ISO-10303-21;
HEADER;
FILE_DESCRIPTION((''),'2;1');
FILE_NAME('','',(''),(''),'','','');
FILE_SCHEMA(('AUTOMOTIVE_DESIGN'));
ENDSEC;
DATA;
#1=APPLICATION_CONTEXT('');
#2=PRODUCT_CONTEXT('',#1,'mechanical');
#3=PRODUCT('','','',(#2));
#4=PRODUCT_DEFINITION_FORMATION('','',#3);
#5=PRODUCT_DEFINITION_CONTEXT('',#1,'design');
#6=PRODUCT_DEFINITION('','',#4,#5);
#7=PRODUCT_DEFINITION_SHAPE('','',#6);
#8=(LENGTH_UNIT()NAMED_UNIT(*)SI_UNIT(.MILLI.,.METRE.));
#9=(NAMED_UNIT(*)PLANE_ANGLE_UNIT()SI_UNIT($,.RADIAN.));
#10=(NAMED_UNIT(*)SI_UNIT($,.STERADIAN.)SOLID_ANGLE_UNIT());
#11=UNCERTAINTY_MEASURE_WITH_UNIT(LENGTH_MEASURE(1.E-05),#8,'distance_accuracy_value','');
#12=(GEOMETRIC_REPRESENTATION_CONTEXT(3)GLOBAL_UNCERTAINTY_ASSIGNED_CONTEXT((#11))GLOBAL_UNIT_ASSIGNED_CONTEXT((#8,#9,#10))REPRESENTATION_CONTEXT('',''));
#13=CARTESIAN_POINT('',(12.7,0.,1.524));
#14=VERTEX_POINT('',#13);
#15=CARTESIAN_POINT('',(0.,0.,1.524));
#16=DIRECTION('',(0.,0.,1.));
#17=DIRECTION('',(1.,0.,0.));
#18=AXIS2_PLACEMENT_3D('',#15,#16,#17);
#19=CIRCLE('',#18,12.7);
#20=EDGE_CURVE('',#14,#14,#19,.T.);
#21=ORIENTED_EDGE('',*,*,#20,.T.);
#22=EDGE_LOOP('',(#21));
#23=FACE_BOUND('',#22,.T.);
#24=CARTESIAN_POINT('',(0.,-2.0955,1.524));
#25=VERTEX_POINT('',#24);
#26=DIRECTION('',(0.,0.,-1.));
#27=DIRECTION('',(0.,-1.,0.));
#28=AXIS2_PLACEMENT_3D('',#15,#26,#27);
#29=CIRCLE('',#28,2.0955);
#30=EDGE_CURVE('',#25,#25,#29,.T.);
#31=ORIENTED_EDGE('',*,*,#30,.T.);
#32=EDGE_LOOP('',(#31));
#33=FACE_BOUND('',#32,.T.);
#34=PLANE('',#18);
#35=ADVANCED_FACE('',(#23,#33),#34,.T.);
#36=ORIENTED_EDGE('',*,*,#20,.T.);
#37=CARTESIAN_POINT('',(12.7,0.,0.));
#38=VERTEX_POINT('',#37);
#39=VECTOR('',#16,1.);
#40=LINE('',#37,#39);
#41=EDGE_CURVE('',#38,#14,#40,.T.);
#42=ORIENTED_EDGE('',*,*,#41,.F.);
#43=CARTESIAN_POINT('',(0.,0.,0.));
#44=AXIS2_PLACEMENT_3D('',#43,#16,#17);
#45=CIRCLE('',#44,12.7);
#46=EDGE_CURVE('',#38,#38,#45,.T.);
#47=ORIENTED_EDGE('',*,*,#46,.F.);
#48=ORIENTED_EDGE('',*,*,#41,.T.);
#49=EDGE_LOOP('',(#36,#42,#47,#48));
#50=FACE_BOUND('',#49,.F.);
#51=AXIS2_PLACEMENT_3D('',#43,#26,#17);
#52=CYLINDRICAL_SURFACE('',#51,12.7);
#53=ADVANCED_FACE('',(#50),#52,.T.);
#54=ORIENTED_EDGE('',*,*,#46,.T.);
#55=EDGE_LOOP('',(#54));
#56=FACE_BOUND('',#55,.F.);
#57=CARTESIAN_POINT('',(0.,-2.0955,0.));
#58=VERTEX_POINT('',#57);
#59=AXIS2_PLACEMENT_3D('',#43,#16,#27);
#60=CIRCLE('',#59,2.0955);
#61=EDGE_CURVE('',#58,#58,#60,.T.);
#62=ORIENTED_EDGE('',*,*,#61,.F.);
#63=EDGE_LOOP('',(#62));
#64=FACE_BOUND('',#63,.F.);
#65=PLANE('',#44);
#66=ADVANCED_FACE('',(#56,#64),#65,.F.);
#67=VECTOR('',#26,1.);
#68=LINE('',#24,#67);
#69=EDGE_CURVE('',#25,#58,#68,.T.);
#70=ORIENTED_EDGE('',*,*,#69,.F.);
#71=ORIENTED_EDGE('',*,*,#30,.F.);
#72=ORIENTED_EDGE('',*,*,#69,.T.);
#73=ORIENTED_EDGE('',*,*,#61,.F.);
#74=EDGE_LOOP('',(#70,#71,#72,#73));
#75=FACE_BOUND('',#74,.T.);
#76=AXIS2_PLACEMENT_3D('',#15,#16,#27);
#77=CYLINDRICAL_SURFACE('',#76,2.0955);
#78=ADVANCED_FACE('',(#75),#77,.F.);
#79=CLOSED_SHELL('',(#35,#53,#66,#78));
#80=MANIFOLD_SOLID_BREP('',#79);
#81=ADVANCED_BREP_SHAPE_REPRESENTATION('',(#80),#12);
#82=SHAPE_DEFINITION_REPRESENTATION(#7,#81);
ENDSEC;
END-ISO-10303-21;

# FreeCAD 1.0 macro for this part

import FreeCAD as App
import Part
import Sketcher
Q = App.Units.Quantity

doc = App.newDocument("Part")
body = doc.addObject("PartDesign::Body", "Body")

sketch1 = doc.addObject("Sketcher::SketchObject", "Sketch")
body.addObject(sketch1)
sketch1.AttachmentSupport = (doc.XY_Plane, [""])
sketch1.MapMode = "FlatFace"
sketch1.addGeometry(Part.Circle(App.Vector(0, 0, 0), App.Vector(0, 0, 1), 13), False)
sketch1.addConstraint([
    Sketcher.Constraint("Coincident", 0, 3, -1, 1),
    Sketcher.Constraint("Diameter", 0, Q("1 in")),
])
pad1 = doc.addObject("PartDesign::Pad", "Pad")
body.addObject(pad1)
pad1.Profile = sketch1
pad1.Length = Q("0.06 in")

sketch2 = doc.addObject("Sketcher::SketchObject", "Sketch001")
body.addObject(sketch2)
sketch2.AttachmentSupport = (doc.XY_Plane, [""])
sketch2.MapMode = "FlatFace"
sketch2.AttachmentOffset = App.Placement(App.Vector(0, 0, 0.06 * 25.4), App.Rotation())
sketch2.addGeometry(Part.Circle(App.Vector(0, 0, 0), App.Vector(0, 0, 1), 2.1), False)
sketch2.addConstraint([
    Sketcher.Constraint("Coincident", 0, 3, -1, 1),
    Sketcher.Constraint("Diameter", 0, Q("0.165 in")),
])
doc.recompute()
hole = doc.addObject("PartDesign::Hole", "Hole")
body.addObject(hole)
hole.Profile = sketch2
hole.ThreadType = "None"
hole.Diameter = Q("0.165 in")
hole.DepthType = "ThroughAll"

doc.recompute()
